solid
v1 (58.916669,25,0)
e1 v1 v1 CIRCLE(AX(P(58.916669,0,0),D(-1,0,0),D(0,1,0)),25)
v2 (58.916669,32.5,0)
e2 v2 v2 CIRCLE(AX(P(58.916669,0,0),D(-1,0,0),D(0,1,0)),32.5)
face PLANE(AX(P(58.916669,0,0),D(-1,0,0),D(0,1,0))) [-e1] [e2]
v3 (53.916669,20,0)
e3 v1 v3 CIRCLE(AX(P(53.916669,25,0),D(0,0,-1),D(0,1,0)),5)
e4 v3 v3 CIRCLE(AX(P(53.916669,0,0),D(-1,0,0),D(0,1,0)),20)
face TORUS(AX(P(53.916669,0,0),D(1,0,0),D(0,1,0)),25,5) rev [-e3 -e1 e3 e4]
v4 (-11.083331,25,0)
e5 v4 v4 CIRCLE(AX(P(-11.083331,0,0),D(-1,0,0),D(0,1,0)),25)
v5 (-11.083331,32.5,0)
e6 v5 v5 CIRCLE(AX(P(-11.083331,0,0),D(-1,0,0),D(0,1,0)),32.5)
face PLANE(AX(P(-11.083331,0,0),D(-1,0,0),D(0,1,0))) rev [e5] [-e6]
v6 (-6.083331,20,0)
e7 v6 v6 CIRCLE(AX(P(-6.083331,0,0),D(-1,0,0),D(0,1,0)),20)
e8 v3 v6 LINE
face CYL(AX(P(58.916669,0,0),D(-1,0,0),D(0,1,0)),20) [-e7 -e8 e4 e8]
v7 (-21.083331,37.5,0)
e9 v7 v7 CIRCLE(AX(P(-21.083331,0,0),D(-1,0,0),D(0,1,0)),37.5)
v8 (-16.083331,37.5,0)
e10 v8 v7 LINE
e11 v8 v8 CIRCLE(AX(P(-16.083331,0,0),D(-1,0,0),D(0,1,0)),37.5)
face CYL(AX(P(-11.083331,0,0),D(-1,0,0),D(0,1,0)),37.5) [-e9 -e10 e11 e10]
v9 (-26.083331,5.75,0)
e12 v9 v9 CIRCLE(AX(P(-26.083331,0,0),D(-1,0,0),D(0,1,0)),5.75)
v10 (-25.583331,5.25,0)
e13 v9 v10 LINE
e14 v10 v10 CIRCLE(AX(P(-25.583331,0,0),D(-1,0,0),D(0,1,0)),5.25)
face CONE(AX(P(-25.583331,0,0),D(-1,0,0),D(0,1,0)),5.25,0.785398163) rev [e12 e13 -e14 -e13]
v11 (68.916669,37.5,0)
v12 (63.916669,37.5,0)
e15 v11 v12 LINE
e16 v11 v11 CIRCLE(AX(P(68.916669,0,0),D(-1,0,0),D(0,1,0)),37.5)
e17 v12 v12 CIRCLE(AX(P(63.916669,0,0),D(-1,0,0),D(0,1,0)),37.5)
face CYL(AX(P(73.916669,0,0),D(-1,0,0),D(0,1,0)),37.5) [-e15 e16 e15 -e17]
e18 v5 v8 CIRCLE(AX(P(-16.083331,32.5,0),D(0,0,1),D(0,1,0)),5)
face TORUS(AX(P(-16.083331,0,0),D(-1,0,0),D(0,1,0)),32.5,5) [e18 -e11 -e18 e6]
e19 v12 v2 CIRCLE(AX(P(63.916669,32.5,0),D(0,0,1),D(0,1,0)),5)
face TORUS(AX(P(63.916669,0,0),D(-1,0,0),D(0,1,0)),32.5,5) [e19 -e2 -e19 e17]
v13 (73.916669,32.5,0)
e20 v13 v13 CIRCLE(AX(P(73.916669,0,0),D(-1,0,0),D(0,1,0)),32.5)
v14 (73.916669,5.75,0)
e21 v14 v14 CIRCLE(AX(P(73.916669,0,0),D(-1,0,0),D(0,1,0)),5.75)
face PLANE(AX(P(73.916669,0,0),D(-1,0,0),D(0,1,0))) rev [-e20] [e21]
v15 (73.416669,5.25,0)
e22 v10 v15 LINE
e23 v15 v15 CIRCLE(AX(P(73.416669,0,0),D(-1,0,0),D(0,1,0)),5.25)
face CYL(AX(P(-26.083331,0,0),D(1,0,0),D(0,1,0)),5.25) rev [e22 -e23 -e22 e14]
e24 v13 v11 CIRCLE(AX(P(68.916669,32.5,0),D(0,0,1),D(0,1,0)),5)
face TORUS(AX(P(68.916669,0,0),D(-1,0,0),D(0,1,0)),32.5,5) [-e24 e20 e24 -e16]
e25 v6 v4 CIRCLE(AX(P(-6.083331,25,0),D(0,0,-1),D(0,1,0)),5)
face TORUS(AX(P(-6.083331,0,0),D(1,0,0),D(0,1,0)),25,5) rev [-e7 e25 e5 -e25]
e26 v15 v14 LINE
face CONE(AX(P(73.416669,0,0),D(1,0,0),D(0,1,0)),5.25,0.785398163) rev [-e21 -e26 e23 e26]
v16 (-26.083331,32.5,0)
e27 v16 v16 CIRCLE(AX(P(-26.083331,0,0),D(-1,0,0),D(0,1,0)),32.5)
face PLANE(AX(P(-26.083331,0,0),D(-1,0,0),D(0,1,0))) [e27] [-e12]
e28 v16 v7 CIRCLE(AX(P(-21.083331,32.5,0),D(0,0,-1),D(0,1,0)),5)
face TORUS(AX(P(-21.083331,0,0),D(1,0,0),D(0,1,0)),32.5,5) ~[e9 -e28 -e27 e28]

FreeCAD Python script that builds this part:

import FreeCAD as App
import Part
import Sketcher
from FreeCAD import Vector


def edges_at(feature, points):
    """Names of the edges that pass closest to the given points."""
    edges = feature.Shape.Edges
    near = lambda p: min(range(len(edges)), key=lambda i: edges[i].distToShape(Part.Vertex(*p))[0])
    return sorted({f"Edge{near(p) + 1}" for p in points})


def add_polygon(sketch, points):
    """Adds a closed chain of lines whose ends are joined by coincident constraints."""
    first, n = sketch.GeometryCount, len(points)
    for a, b in zip(points, points[1:] + points[:1]):
        sketch.addGeometry(Part.LineSegment(App.Vector(*a, 0), App.Vector(*b, 0)), False)
    for i in range(n):
        sketch.addConstraint(Sketcher.Constraint("Coincident", first + i, 2, first + (i + 1) % n, 1))

doc = App.newDocument("Part")
body = doc.addObject("PartDesign::Body", "Body")

# Sketch on XY plane
sketch1 = body.newObject("Sketcher::SketchObject", "Sketch")
sketch1.AttachmentSupport = (doc.getObject("XY_Plane"), [""])
sketch1.MapMode = "FlatFace"
add_polygon(sketch1, [(-26, 38), (-26, 5), (74, 5), (74, 38), (59, 38), (59, 20), (-11, 20), (-11, 38)])  # lines 0-7
sketch1.addConstraint([
    Sketcher.Constraint("Vertical", 0),
    Sketcher.Constraint("Horizontal", 1),
    Sketcher.Constraint("Vertical", 2),
    Sketcher.Constraint("Horizontal", 3),
    Sketcher.Constraint("Vertical", 4),
    Sketcher.Constraint("Horizontal", 5),
    Sketcher.Constraint("Vertical", 6),
    Sketcher.Constraint("Horizontal", 7),
    Sketcher.Constraint("Horizontal", 3, 2, 6, 2),
    Sketcher.Constraint("Equal", 3, 7),
    Sketcher.Constraint("DistanceX", 1, 1, 1, 2, 100.0),
    Sketcher.Constraint("DistanceX", 3, 2, 3, 1, 15.0),
    Sketcher.Constraint("DistanceY", 4, 2, 4, 1, 17.5),
    Sketcher.Constraint("DistanceY", -1, 1, 4, 2, 20.0),
    Sketcher.Constraint("DistanceY", 0, 2, 0, 1, 32.25),
    Sketcher.Constraint("DistanceX", 0, 2, -1, 1, 26.083331),
])
revolution = body.newObject("PartDesign::Revolution", "Revolution")
revolution.Profile = sketch1
revolution.ReferenceAxis = (sketch1, ["H_Axis"])
revolution.Angle = 360
doc.recompute()

fillet = body.newObject("PartDesign::Fillet", "Fillet")
fillet.Base = (revolution, edges_at(revolution, [
    (-26.083, -37.5, 0),
    (-11.083, -37.5, 0),
    (58.917, -37.5, 0),
    (73.917, -37.5, 0),
    (58.917, -20, 0),
    (-11.083, -20, 0),
    (23.917, 20, 0),
]))
fillet.Radius = 5
doc.recompute()

chamfer = body.newObject("PartDesign::Chamfer", "Chamfer")
chamfer.Base = (fillet, edges_at(fillet, [(73.917, -5.25, 0), (-26.083, -5.25, 0)]))
chamfer.Size = 0.5

doc.recompute()
